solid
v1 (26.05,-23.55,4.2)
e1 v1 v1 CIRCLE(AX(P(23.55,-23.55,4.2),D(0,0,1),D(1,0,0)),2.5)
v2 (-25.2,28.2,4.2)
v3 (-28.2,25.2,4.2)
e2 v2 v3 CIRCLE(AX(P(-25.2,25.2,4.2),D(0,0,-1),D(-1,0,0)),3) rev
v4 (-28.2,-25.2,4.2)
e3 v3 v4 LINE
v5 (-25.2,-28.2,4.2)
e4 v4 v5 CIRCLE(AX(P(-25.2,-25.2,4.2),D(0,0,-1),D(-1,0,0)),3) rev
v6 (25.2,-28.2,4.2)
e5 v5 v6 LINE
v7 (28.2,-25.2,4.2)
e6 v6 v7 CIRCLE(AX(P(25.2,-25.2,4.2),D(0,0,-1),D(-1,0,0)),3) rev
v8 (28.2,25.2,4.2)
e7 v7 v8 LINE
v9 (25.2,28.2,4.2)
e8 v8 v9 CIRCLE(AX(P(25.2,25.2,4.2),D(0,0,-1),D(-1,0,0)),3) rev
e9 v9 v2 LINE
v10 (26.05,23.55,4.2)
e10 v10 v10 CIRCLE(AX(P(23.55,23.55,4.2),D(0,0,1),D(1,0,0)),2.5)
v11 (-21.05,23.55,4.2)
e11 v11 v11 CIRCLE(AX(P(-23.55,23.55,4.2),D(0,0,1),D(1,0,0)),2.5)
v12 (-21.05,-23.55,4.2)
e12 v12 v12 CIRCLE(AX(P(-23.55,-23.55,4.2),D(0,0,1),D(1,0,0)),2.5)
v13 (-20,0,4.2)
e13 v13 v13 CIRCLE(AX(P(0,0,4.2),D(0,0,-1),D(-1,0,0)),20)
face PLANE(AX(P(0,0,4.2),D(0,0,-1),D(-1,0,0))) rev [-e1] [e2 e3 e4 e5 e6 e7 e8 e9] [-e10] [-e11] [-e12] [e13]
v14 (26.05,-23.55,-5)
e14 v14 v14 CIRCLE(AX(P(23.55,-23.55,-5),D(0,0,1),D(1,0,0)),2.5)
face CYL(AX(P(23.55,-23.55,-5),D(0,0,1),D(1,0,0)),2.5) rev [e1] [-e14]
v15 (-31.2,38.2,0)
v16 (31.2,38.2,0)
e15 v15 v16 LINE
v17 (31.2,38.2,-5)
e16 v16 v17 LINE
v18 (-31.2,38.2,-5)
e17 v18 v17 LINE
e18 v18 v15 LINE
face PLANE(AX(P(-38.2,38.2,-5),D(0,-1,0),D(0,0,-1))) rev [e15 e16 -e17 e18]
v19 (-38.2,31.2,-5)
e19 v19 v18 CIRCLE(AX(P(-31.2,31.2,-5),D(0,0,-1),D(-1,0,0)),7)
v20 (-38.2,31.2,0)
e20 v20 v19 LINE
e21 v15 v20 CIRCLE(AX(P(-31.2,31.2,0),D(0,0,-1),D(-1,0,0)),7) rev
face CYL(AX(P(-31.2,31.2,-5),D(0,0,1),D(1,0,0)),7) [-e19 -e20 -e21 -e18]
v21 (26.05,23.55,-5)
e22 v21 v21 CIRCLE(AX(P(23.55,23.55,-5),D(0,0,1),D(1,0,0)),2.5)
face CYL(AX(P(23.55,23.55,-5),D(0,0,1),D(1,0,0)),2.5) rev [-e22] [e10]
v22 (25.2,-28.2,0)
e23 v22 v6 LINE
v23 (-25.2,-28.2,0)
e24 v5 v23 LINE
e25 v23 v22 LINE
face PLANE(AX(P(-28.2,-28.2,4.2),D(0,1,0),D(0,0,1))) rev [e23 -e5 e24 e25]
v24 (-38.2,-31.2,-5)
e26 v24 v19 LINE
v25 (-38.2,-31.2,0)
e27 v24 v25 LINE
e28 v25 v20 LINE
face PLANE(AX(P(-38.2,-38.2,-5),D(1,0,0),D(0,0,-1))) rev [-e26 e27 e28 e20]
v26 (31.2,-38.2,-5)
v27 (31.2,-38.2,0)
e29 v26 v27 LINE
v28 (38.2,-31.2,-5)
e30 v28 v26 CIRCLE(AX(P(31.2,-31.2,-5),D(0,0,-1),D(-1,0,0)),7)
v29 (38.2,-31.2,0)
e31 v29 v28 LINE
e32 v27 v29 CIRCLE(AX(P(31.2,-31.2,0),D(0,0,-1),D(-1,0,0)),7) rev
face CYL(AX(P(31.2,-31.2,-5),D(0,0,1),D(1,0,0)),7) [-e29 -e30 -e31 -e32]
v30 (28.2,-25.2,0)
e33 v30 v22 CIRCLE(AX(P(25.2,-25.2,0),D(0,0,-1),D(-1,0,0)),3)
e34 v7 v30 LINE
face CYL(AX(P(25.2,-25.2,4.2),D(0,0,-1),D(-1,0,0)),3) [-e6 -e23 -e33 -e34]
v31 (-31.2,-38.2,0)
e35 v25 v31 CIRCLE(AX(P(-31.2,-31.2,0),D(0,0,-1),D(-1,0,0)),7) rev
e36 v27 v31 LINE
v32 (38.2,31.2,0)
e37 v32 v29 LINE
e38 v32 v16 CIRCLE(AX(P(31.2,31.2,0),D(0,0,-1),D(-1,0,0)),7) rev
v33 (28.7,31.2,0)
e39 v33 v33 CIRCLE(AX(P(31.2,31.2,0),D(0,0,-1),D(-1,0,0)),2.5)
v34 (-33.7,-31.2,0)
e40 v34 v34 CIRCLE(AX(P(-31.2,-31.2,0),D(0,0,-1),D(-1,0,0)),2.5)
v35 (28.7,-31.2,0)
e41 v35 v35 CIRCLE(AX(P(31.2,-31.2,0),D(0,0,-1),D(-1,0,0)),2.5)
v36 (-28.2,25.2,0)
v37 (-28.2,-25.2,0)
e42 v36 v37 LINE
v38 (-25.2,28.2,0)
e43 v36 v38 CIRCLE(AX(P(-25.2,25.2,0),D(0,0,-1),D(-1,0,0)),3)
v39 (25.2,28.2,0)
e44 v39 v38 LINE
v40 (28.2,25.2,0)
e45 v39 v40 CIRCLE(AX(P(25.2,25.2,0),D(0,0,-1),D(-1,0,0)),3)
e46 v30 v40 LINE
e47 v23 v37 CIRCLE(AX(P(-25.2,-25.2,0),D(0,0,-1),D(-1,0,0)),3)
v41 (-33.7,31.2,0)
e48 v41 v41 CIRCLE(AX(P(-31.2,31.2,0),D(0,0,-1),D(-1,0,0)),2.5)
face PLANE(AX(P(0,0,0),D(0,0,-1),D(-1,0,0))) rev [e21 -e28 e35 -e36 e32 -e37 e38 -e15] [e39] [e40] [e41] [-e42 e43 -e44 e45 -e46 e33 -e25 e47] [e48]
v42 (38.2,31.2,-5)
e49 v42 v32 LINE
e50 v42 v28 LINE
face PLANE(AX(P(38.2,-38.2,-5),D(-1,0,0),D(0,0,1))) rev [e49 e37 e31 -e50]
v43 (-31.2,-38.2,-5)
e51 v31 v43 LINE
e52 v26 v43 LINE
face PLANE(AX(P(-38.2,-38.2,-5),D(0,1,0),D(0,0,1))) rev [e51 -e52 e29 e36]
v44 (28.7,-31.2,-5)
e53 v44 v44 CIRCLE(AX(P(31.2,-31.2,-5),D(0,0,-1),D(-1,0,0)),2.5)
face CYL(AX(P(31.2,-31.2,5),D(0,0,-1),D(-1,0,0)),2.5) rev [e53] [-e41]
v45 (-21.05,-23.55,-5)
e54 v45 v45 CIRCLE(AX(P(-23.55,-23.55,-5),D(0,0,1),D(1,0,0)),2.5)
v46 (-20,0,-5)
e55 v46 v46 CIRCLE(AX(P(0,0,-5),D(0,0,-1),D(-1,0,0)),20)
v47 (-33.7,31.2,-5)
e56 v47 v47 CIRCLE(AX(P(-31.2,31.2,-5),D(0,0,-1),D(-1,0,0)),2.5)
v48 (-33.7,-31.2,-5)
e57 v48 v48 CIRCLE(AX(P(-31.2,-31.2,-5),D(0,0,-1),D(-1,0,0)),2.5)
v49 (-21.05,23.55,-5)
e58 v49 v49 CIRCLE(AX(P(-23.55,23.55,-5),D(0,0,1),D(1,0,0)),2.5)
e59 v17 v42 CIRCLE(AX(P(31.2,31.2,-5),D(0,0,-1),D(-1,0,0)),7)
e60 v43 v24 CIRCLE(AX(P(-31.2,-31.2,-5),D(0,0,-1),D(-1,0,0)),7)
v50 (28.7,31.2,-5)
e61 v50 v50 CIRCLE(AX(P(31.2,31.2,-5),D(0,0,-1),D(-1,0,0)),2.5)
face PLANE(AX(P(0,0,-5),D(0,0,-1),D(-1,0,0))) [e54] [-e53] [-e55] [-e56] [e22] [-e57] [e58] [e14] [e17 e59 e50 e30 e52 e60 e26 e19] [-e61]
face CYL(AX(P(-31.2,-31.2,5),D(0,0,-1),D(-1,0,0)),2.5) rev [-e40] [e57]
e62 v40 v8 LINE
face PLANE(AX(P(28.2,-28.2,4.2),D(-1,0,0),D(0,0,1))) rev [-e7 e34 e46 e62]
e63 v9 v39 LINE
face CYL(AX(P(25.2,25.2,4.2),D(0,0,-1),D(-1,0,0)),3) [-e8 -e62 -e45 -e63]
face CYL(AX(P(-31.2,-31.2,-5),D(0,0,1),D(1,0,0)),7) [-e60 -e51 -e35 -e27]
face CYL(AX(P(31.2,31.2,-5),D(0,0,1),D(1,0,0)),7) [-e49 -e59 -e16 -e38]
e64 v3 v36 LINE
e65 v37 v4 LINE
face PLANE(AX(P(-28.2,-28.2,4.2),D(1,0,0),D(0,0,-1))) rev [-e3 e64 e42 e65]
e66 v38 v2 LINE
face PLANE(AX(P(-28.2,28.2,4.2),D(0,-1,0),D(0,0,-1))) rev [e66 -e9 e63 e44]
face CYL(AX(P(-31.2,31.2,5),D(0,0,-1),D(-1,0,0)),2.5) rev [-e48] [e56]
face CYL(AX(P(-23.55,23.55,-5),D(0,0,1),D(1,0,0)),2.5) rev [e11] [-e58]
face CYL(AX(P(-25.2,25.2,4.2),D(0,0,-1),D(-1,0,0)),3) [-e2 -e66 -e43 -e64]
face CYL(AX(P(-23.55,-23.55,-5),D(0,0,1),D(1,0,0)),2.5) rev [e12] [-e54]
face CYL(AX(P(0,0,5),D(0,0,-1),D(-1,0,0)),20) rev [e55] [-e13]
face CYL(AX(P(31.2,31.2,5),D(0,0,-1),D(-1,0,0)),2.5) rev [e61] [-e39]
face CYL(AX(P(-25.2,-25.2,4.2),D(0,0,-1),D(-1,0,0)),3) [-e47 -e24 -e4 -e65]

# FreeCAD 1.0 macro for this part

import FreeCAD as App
import Part
import Sketcher
from FreeCAD import Vector
Q = App.Units.Quantity


def edges_at(feature, points):
    """Names of the edges that pass closest to the given points."""
    edges = feature.Shape.Edges
    near = lambda p: min(range(len(edges)), key=lambda i: edges[i].distToShape(Part.Vertex(*p))[0])
    return sorted({f"Edge{near(p) + 1}" for p in points})

doc = App.newDocument("Part")
body = doc.addObject("PartDesign::Body", "Body")

# Sketch on XY plane
sketch1 = doc.addObject("Sketcher::SketchObject", "Sketch")
body.addObject(sketch1)
sketch1.AttachmentSupport = (doc.XY_Plane, [""])
sketch1.MapMode = "FlatFace"
sketch1.addGeometry([
    Part.LineSegment(Vector(-28.2, 28.2, 0), Vector(-28.2, -28.2, 0)),
    Part.LineSegment(Vector(-28.2, -28.2, 0), Vector(28.2, -28.2, 0)),
    Part.LineSegment(Vector(28.2, -28.2, 0), Vector(28.2, 28.2, 0)),
    Part.LineSegment(Vector(28.2, 28.2, 0), Vector(-28.2, 28.2, 0)),
], False)
sketch1.addConstraint([
    Sketcher.Constraint("Coincident", 0, 2, 1, 1),
    Sketcher.Constraint("Coincident", 1, 2, 2, 1),
    Sketcher.Constraint("Coincident", 2, 2, 3, 1),
    Sketcher.Constraint("Coincident", 3, 2, 0, 1),
    Sketcher.Constraint("Vertical", 0),
    Sketcher.Constraint("Horizontal", 1),
    Sketcher.Constraint("Vertical", 2),
    Sketcher.Constraint("Horizontal", 3),
    Sketcher.Constraint("Symmetric", 0, 2, 2, 2, -1, 1),
    Sketcher.Constraint("Equal", 3, 0),
    Sketcher.Constraint("DistanceX", 1, 1, 1, 2, Q("56.4 mm")),
])
pad1 = doc.addObject("PartDesign::Pad", "Pad")
body.addObject(pad1)
pad1.Profile = sketch1
pad1.Length = 4.2

# Sketch on XY plane
sketch2 = doc.addObject("Sketcher::SketchObject", "Sketch001")
body.addObject(sketch2)
sketch2.AttachmentSupport = (doc.XY_Plane, [""])
sketch2.MapMode = "FlatFace"
sketch2.AttachmentOffset = App.Placement(Vector(0, 0, 4.2), App.Rotation())
sketch2.addGeometry(Part.Circle(Vector(0, 0, 0), Vector(0, 0, 1), 19.15), False)
sketch2.addConstraint([
    Sketcher.Constraint("Coincident", 0, 3, -1, 1),
    Sketcher.Constraint("Diameter", 0, Q("38.3 mm")),
])
pocket1 = doc.addObject("PartDesign::Pocket", "Pocket")
body.addObject(pocket1)
pocket1.Profile = sketch2
pocket1.Length = 1.6

# Sketch on XY plane
sketch3 = doc.addObject("Sketcher::SketchObject", "Sketch002")
body.addObject(sketch3)
sketch3.AttachmentSupport = (doc.XY_Plane, [""])
sketch3.MapMode = "FlatFace"
sketch3.addGeometry([
    Part.LineSegment(Vector(38.2, 38.2, 0), Vector(38.2, -38.2, 0)),
    Part.LineSegment(Vector(38.2, -38.2, 0), Vector(-38.2, -38.2, 0)),
    Part.LineSegment(Vector(-38.2, -38.2, 0), Vector(-38.2, 38.2, 0)),
    Part.LineSegment(Vector(-38.2, 38.2, 0), Vector(38.2, 38.2, 0)),
], False)
sketch3.addConstraint([
    Sketcher.Constraint("Coincident", 0, 2, 1, 1),
    Sketcher.Constraint("Coincident", 1, 2, 2, 1),
    Sketcher.Constraint("Coincident", 2, 2, 3, 1),
    Sketcher.Constraint("Coincident", 3, 2, 0, 1),
    Sketcher.Constraint("Vertical", 0),
    Sketcher.Constraint("Horizontal", 1),
    Sketcher.Constraint("Vertical", 2),
    Sketcher.Constraint("Horizontal", 3),
    Sketcher.Constraint("Symmetric", 0, 2, 2, 2, -1, 1),
    Sketcher.Constraint("Equal", 3, 0),
    Sketcher.Constraint("DistanceX", 1, 2, 1, 1, Q("76.4 mm")),
])
pad2 = doc.addObject("PartDesign::Pad", "Pad001")
body.addObject(pad2)
pad2.Profile = sketch3
pad2.Length = 5
pad2.Reversed = True

# Sketch on XY plane
sketch4 = doc.addObject("Sketcher::SketchObject", "Sketch003")
body.addObject(sketch4)
sketch4.AttachmentSupport = (doc.XY_Plane, [""])
sketch4.MapMode = "FlatFace"
sketch4.AttachmentOffset = App.Placement(Vector(0, 0, 2.6), App.Rotation())
sketch4.addGeometry([
    Part.Circle(Vector(0, 0, 0), Vector(0, 0, 1), 10),  # 0
    Part.Circle(Vector(23.55, -23.55, 0), Vector(0, 0, 1), 2.5),  # 1
    Part.Circle(Vector(-23.55, -23.55, 0), Vector(0, 0, 1), 2.5),  # 2
    Part.Circle(Vector(-23.55, 23.55, 0), Vector(0, 0, 1), 2.5),  # 3
    Part.Circle(Vector(23.55, 23.55, 0), Vector(0, 0, 1), 2.5),  # 4
], False)
sketch4.addConstraint([
    Sketcher.Constraint("Coincident", 0, 3, -1, 1),
    Sketcher.Constraint("Equal", 1, 2),
    Sketcher.Constraint("Equal", 2, 3),
    Sketcher.Constraint("Equal", 3, 4),
    Sketcher.Constraint("Symmetric", 1, 3, 3, 3, -1, 1),
    Sketcher.Constraint("Symmetric", 2, 3, 4, 3, -1, 1),
    Sketcher.Constraint("Symmetric", 1, 3, 2, 3, -2),
    Sketcher.Constraint("Diameter", 0, Q("20 mm")),
    Sketcher.Constraint("Diameter", 1, Q("5 mm")),
    Sketcher.Constraint("DistanceX", 2, 3, 1, 3, Q("47.1 mm")),
    Sketcher.Constraint("DistanceY", 2, 3, 3, 3, Q("47.1 mm")),
])
pocket2 = doc.addObject("PartDesign::Pocket", "Pocket001")
body.addObject(pocket2)
pocket2.Profile = sketch4
pocket2.Type = "ThroughAll"
pocket2.Midplane = True
doc.recompute()

fillet = doc.addObject("PartDesign::Fillet", "Fillet")
body.addObject(fillet)
fillet.Base = (pocket2, edges_at(pocket2, [
    (38.2, 38.2, -2.5),
    (38.2, -38.2, -2.5),
    (-38.2, -38.2, -2.5),
    (-38.2, 38.2, -2.5),
]))
fillet.Radius = 7
doc.recompute()

fillet2 = doc.addObject("PartDesign::Fillet", "Fillet001")
body.addObject(fillet2)
fillet2.Base = (fillet, edges_at(fillet, [
    (28.2, -28.2, 2.1),
    (-28.2, -28.2, 2.1),
    (-28.2, 28.2, 2.1),
    (28.2, 28.2, 2.1),
]))
fillet2.Radius = 3

# Sketch on XY plane
sketch5 = doc.addObject("Sketcher::SketchObject", "Sketch004")
body.addObject(sketch5)
sketch5.AttachmentSupport = (doc.XY_Plane, [""])
sketch5.MapMode = "FlatFace"
sketch5.AttachmentOffset = App.Placement(Vector(0, 0, -5), App.Rotation())
sketch5.addGeometry([
    Part.Circle(Vector(31.2, -31.2, 0), Vector(0, 0, 1), 2.5),
    Part.Circle(Vector(31.2, 31.2, 0), Vector(0, 0, 1), 2.5),
    Part.Circle(Vector(-31.2, 31.2, 0), Vector(0, 0, 1), 2.5),
    Part.Circle(Vector(-31.2, -31.2, 0), Vector(0, 0, 1), 2.5),
], False)
sketch5.addConstraint([
    Sketcher.Constraint("Equal", 0, 1),
    Sketcher.Constraint("Equal", 1, 2),
    Sketcher.Constraint("Equal", 2, 3),
    Sketcher.Constraint("Symmetric", 0, 3, 2, 3, -1, 1),
    Sketcher.Constraint("Symmetric", 1, 3, 3, 3, -1, 1),
    Sketcher.Constraint("Symmetric", 1, 3, 2, 3, -2),
    Sketcher.Constraint("Diameter", 0, Q("5 mm")),
    Sketcher.Constraint("DistanceX", -1, 1, 0, 3, Q("31.2 mm")),
    Sketcher.Constraint("DistanceY", 0, 3, -1, 1, Q("31.2 mm")),
])
pocket3 = doc.addObject("PartDesign::Pocket", "Pocket002")
body.addObject(pocket3)
pocket3.Profile = sketch5
pocket3.Length = 10
pocket3.Reversed = True

# Sketch on XY plane
sketch6 = doc.addObject("Sketcher::SketchObject", "Sketch005")
body.addObject(sketch6)
sketch6.AttachmentSupport = (doc.XY_Plane, [""])
sketch6.MapMode = "FlatFace"
sketch6.AttachmentOffset = App.Placement(Vector(0, 0, -5), App.Rotation())
sketch6.addGeometry(Part.Circle(Vector(0, 0, 0), Vector(0, 0, 1), 20), False)
sketch6.addConstraint([
    Sketcher.Constraint("Coincident", 0, 3, -1, 1),
    Sketcher.Constraint("Diameter", 0, Q("40 mm")),
])
pocket4 = doc.addObject("PartDesign::Pocket", "Pocket003")
body.addObject(pocket4)
pocket4.Profile = sketch6
pocket4.Length = 10
pocket4.Reversed = True

doc.recompute()
